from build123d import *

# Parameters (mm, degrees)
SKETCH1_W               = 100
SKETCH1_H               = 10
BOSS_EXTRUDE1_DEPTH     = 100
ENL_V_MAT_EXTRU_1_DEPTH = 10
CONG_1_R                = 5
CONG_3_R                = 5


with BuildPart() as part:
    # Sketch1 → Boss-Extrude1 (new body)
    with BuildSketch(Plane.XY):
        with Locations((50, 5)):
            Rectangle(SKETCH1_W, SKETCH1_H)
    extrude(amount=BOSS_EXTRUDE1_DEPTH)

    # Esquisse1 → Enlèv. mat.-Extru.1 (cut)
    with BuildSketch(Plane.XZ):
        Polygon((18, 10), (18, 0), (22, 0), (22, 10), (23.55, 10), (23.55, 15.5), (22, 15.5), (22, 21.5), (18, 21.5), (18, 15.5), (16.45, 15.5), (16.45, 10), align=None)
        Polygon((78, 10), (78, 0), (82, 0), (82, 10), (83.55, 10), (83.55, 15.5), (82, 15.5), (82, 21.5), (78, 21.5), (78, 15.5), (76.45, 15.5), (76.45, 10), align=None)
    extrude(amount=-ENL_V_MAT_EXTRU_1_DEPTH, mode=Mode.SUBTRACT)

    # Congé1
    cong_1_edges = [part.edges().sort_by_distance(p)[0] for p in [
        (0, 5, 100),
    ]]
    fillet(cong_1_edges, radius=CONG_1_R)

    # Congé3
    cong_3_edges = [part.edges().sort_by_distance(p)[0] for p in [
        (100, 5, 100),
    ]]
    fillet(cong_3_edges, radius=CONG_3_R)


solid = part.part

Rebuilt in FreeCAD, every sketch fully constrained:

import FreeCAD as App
import Part
import Sketcher
from FreeCAD import Vector


def edges_at(feature, points):
    """Names of the edges that pass closest to the given points."""
    edges = feature.Shape.Edges
    near = lambda p: min(range(len(edges)), key=lambda i: edges[i].distToShape(Part.Vertex(*p))[0])
    return sorted({f"Edge{near(p) + 1}" for p in points})

doc = App.newDocument("Part")
body = doc.addObject("PartDesign::Body", "Body")

# Sketch on XY plane
sketch1 = doc.addObject("Sketcher::SketchObject", "Sketch")
body.addObject(sketch1)
sketch1.AttachmentSupport = (doc.XY_Plane, [""])
sketch1.MapMode = "FlatFace"
sketch1.addGeometry([
    Part.LineSegment(Vector(0, 10, 0), Vector(0, 0, 0)),
    Part.LineSegment(Vector(0, 0, 0), Vector(100, 0, 0)),
    Part.LineSegment(Vector(100, 0, 0), Vector(100, 10, 0)),
    Part.LineSegment(Vector(100, 10, 0), Vector(0, 10, 0)),
], False)
sketch1.addConstraint([
    Sketcher.Constraint("Coincident", 0, 2, 1, 1),
    Sketcher.Constraint("Coincident", 1, 2, 2, 1),
    Sketcher.Constraint("Coincident", 2, 2, 3, 1),
    Sketcher.Constraint("Coincident", 3, 2, 0, 1),
    Sketcher.Constraint("Vertical", 0),
    Sketcher.Constraint("Horizontal", 1),
    Sketcher.Constraint("Vertical", 2),
    Sketcher.Constraint("Horizontal", 3),
    Sketcher.Constraint("Coincident", 0, 2, -1, 1),
    Sketcher.Constraint("DistanceX", 1, 1, 1, 2, 100.0),
    Sketcher.Constraint("DistanceY", 0, 2, 0, 1, 10.0),
])
pad1 = doc.addObject("PartDesign::Pad", "Pad")
body.addObject(pad1)
pad1.Profile = sketch1
pad1.Length = 100

# Sketch on XZ plane
sketch2 = doc.addObject("Sketcher::SketchObject", "Sketch001")
body.addObject(sketch2)
sketch2.AttachmentSupport = (doc.XZ_Plane, [""])
sketch2.MapMode = "FlatFace"
sketch2.addGeometry([
    Part.LineSegment(Vector(18, 10, 0), Vector(18, 0, 0)),  # 0
    Part.LineSegment(Vector(18, 0, 0), Vector(22, 0, 0)),  # 1
    Part.LineSegment(Vector(22, 0, 0), Vector(22, 10, 0)),  # 2
    Part.LineSegment(Vector(22, 10, 0), Vector(23.6, 10, 0)),  # 3
    Part.LineSegment(Vector(23.6, 10, 0), Vector(23.6, 15.5, 0)),  # 4
    Part.LineSegment(Vector(23.6, 15.5, 0), Vector(22, 15.5, 0)),  # 5
    Part.LineSegment(Vector(22, 15.5, 0), Vector(22, 21.5, 0)),  # 6
    Part.LineSegment(Vector(22, 21.5, 0), Vector(18, 21.5, 0)),  # 7
    Part.LineSegment(Vector(18, 21.5, 0), Vector(18, 15.5, 0)),  # 8
    Part.LineSegment(Vector(18, 15.5, 0), Vector(16.4, 15.5, 0)),  # 9
    Part.LineSegment(Vector(16.4, 15.5, 0), Vector(16.4, 10, 0)),  # 10
    Part.LineSegment(Vector(16.4, 10, 0), Vector(18, 10, 0)),  # 11
    Part.LineSegment(Vector(78, 10, 0), Vector(78, 0, 0)),  # 12
    Part.LineSegment(Vector(78, 0, 0), Vector(82, 0, 0)),  # 13
    Part.LineSegment(Vector(82, 0, 0), Vector(82, 10, 0)),  # 14
    Part.LineSegment(Vector(82, 10, 0), Vector(83.5, 10, 0)),  # 15
    Part.LineSegment(Vector(83.5, 10, 0), Vector(83.5, 15.5, 0)),  # 16
    Part.LineSegment(Vector(83.5, 15.5, 0), Vector(82, 15.5, 0)),  # 17
    Part.LineSegment(Vector(82, 15.5, 0), Vector(82, 21.5, 0)),  # 18
    Part.LineSegment(Vector(82, 21.5, 0), Vector(78, 21.5, 0)),  # 19
    Part.LineSegment(Vector(78, 21.5, 0), Vector(78, 15.5, 0)),  # 20
    Part.LineSegment(Vector(78, 15.5, 0), Vector(76.5, 15.5, 0)),  # 21
    Part.LineSegment(Vector(76.5, 15.5, 0), Vector(76.5, 10, 0)),  # 22
    Part.LineSegment(Vector(76.5, 10, 0), Vector(78, 10, 0)),  # 23
], False)
sketch2.addConstraint([
    Sketcher.Constraint("Coincident", 0, 2, 1, 1),
    Sketcher.Constraint("Coincident", 1, 2, 2, 1),
    Sketcher.Constraint("Coincident", 2, 2, 3, 1),
    Sketcher.Constraint("Coincident", 3, 2, 4, 1),
    Sketcher.Constraint("Coincident", 4, 2, 5, 1),
    Sketcher.Constraint("Coincident", 5, 2, 6, 1),
    Sketcher.Constraint("Coincident", 6, 2, 7, 1),
    Sketcher.Constraint("Coincident", 7, 2, 8, 1),
    Sketcher.Constraint("Coincident", 8, 2, 9, 1),
    Sketcher.Constraint("Coincident", 9, 2, 10, 1),
    Sketcher.Constraint("Coincident", 10, 2, 11, 1),
    Sketcher.Constraint("Coincident", 11, 2, 0, 1),
    Sketcher.Constraint("Coincident", 12, 2, 13, 1),
    Sketcher.Constraint("Coincident", 13, 2, 14, 1),
    Sketcher.Constraint("Coincident", 14, 2, 15, 1),
    Sketcher.Constraint("Coincident", 15, 2, 16, 1),
    Sketcher.Constraint("Coincident", 16, 2, 17, 1),
    Sketcher.Constraint("Coincident", 17, 2, 18, 1),
    Sketcher.Constraint("Coincident", 18, 2, 19, 1),
    Sketcher.Constraint("Coincident", 19, 2, 20, 1),
    Sketcher.Constraint("Coincident", 20, 2, 21, 1),
    Sketcher.Constraint("Coincident", 21, 2, 22, 1),
    Sketcher.Constraint("Coincident", 22, 2, 23, 1),
    Sketcher.Constraint("Coincident", 23, 2, 12, 1),
    Sketcher.Constraint("Vertical", 0),
    Sketcher.Constraint("Horizontal", 1),
    Sketcher.Constraint("Vertical", 2),
    Sketcher.Constraint("Horizontal", 3),
    Sketcher.Constraint("Vertical", 4),
    Sketcher.Constraint("Horizontal", 5),
    Sketcher.Constraint("Vertical", 6),
    Sketcher.Constraint("Horizontal", 7),
    Sketcher.Constraint("Vertical", 8),
    Sketcher.Constraint("Horizontal", 9),
    Sketcher.Constraint("Vertical", 10),
    Sketcher.Constraint("Horizontal", 11),
    Sketcher.Constraint("Vertical", 12),
    Sketcher.Constraint("Horizontal", 13),
    Sketcher.Constraint("Vertical", 14),
    Sketcher.Constraint("Horizontal", 15),
    Sketcher.Constraint("Vertical", 16),
    Sketcher.Constraint("Horizontal", 17),
    Sketcher.Constraint("Vertical", 18),
    Sketcher.Constraint("Horizontal", 19),
    Sketcher.Constraint("Vertical", 20),
    Sketcher.Constraint("Horizontal", 21),
    Sketcher.Constraint("Vertical", 22),
    Sketcher.Constraint("Horizontal", 23),
    Sketcher.Constraint("PointOnObject", 0, 2, -1),
    Sketcher.Constraint("PointOnObject", 12, 2, -1),
    Sketcher.Constraint("Horizontal", 5, 2, 8, 2),
    Sketcher.Constraint("Horizontal", 3, 2, 10, 2),
    Sketcher.Constraint("Horizontal", 11, 2, 14, 2),
    Sketcher.Constraint("Horizontal", 9, 2, 16, 2),
    Sketcher.Constraint("Horizontal", 7, 2, 18, 2),
    Sketcher.Constraint("Horizontal", 17, 2, 20, 2),
    Sketcher.Constraint("Horizontal", 15, 2, 22, 2),
    Sketcher.Constraint("Vertical", 2, 2, 5, 2),
    Sketcher.Constraint("Vertical", 0, 2, 7, 2),
    Sketcher.Constraint("Vertical", 14, 2, 17, 2),
    Sketcher.Constraint("Vertical", 12, 2, 19, 2),
    Sketcher.Constraint("Equal", 5, 9),
    Sketcher.Constraint("Equal", 7, 13),
    Sketcher.Constraint("Equal", 11, 15),
    Sketcher.Constraint("Equal", 17, 21),
    Sketcher.Constraint("DistanceX", 1, 1, 1, 2, 4.0),
    Sketcher.Constraint("DistanceY", 0, 2, 0, 1, 10.0),
    Sketcher.Constraint("DistanceY", 6, 1, 6, 2, 6.0),
    Sketcher.Constraint("DistanceY", 4, 1, 4, 2, 5.5),
    Sketcher.Constraint("DistanceX", -1, 1, 0, 2, 18.0),
    Sketcher.Constraint("DistanceX", -1, 1, 12, 2, 78.0),
    Sketcher.Constraint("DistanceX", 3, 1, 3, 2, 1.55),
])
pocket1 = doc.addObject("PartDesign::Pocket", "Pocket")
body.addObject(pocket1)
pocket1.Profile = sketch2
pocket1.Length = 10
doc.recompute()

fillet = doc.addObject("PartDesign::Fillet", "Fillet")
body.addObject(fillet)
fillet.Base = (pocket1, edges_at(pocket1, [(0, 5, 100)]))
fillet.Radius = 5
doc.recompute()

fillet2 = doc.addObject("PartDesign::Fillet", "Fillet001")
body.addObject(fillet2)
fillet2.Base = (fillet, edges_at(fillet, [(100, 5, 100)]))
fillet2.Radius = 5

doc.recompute()
